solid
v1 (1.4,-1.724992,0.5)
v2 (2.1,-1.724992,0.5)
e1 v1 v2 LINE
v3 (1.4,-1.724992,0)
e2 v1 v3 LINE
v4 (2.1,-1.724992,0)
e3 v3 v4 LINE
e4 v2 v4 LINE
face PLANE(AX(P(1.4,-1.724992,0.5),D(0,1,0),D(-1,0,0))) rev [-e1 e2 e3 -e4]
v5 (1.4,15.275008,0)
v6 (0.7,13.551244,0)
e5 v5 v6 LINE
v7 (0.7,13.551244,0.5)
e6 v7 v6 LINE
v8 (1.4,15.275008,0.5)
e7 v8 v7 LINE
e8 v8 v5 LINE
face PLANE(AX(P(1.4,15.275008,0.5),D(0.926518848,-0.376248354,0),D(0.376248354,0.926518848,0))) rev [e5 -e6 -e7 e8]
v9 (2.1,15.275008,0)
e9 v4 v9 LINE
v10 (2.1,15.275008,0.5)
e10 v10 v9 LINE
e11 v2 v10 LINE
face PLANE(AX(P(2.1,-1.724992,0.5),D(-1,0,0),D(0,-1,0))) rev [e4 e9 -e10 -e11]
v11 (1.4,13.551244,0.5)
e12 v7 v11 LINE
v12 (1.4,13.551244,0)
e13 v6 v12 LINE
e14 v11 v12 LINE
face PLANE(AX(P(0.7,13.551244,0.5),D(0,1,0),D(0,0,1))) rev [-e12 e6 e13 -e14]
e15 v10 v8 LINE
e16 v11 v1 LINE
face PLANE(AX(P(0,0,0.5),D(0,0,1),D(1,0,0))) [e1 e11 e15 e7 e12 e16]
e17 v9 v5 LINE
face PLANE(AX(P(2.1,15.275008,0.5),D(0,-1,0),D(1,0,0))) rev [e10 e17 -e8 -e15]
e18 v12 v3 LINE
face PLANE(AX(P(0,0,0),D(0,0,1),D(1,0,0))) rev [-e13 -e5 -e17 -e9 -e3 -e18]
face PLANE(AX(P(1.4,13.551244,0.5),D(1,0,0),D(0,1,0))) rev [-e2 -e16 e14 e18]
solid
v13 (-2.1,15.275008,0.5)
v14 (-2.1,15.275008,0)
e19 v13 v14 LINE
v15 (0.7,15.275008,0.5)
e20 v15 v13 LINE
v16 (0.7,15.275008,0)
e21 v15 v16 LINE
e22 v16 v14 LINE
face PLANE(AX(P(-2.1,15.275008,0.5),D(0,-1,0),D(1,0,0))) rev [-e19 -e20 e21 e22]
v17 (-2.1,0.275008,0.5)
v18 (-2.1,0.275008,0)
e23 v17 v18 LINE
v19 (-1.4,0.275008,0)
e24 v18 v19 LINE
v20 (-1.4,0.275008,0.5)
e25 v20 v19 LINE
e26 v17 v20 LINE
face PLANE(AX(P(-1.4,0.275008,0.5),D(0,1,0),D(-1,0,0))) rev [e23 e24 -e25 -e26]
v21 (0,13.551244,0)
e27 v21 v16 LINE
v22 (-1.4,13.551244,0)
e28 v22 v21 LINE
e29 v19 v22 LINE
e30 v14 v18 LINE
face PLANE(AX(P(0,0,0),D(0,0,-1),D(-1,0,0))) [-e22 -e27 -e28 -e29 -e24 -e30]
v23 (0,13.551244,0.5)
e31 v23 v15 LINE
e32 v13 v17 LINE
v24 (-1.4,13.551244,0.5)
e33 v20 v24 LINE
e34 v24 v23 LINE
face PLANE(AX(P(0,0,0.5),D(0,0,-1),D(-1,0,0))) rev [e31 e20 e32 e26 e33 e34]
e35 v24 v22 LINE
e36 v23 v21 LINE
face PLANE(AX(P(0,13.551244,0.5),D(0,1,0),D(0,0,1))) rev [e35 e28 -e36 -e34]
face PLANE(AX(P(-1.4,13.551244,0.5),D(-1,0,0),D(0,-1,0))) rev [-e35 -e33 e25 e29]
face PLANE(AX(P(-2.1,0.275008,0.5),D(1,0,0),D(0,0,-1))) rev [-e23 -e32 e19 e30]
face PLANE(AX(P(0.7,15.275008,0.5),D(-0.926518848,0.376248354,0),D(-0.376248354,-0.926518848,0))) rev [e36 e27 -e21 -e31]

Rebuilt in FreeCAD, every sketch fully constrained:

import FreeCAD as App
import Part
import Sketcher
from FreeCAD import Vector


def add_polygon(sketch, points):
    """Adds a closed chain of lines whose ends are joined by coincident constraints."""
    first, n = sketch.GeometryCount, len(points)
    for a, b in zip(points, points[1:] + points[:1]):
        sketch.addGeometry(Part.LineSegment(App.Vector(*a, 0), App.Vector(*b, 0)), False)
    for i in range(n):
        sketch.addConstraint(Sketcher.Constraint("Coincident", first + i, 2, first + (i + 1) % n, 1))

doc = App.newDocument("Part")
body = doc.addObject("PartDesign::Body", "Body")

# Sketch on XY plane
sketch1 = body.newObject("Sketcher::SketchObject", "Sketch")
sketch1.AttachmentSupport = (doc.getObject("XY_Plane"), [""])
sketch1.MapMode = "FlatFace"
add_polygon(sketch1, [(2.1, -1.7), (2.1, 15.3), (1.4, 15.3), (0.7, 13.6), (1.4, 13.6), (1.4, -1.7)])  # lines 0-5
sketch1.addConstraint(Sketcher.Constraint("Vertical", 0))
sketch1.addConstraint(Sketcher.Constraint("Horizontal", 1))
sketch1.addConstraint(Sketcher.Constraint("Horizontal", 3))
sketch1.addConstraint(Sketcher.Constraint("Vertical", 4))
sketch1.addConstraint(Sketcher.Constraint("Horizontal", 5))
sketch1.addConstraint(Sketcher.Constraint("Vertical", 1, 2, 3, 2))
sketch1.addConstraint(Sketcher.Constraint("Equal", 1, 3))
sketch1.addConstraint(Sketcher.Constraint("DistanceY", 0, 1, 0, 2, 17.0))
sketch1.addConstraint(Sketcher.Constraint("DistanceX", 1, 2, 1, 1, 0.7))
sketch1.addConstraint(Sketcher.Constraint("DistanceX", -1, 1, 0, 2, 2.1))
sketch1.addConstraint(Sketcher.Constraint("DistanceY", 4, 2, 4, 1, 15.276236))
sketch1.addConstraint(Sketcher.Constraint("DistanceY", -1, 1, 0, 2, 15.275008))
pad1 = body.newObject("PartDesign::Pad", "Pad")
pad1.Profile = sketch1
pad1.Length = 0.5
body2 = doc.addObject("PartDesign::Body", "Body001")

# Sketch on XY plane
sketch2 = body2.newObject("Sketcher::SketchObject", "Sketch001")
sketch2.AttachmentSupport = (doc.getObject("XY_Plane001"), [""])
sketch2.MapMode = "FlatFace"
add_polygon(sketch2, [(0, 13.6), (0.7, 15.3), (-2.1, 15.3), (-2.1, 0.3), (-1.4, 0.3), (-1.4, 13.6)])  # lines 0-5
sketch2.addConstraint(Sketcher.Constraint("Horizontal", 1))
sketch2.addConstraint(Sketcher.Constraint("Vertical", 2))
sketch2.addConstraint(Sketcher.Constraint("Horizontal", 3))
sketch2.addConstraint(Sketcher.Constraint("Vertical", 4))
sketch2.addConstraint(Sketcher.Constraint("Horizontal", 5))
sketch2.addConstraint(Sketcher.Constraint("PointOnObject", 5, 2, -2))
sketch2.addConstraint(Sketcher.Constraint("DistanceY", 2, 2, 2, 1, 15.0))
sketch2.addConstraint(Sketcher.Constraint("DistanceX", 1, 2, 1, 1, 2.8))
sketch2.addConstraint(Sketcher.Constraint("DistanceX", 3, 1, 3, 2, 0.7))
sketch2.addConstraint(Sketcher.Constraint("DistanceX", 5, 1, 5, 2, 1.4))
sketch2.addConstraint(Sketcher.Constraint("DistanceY", 4, 1, 4, 2, 13.276236))
sketch2.addConstraint(Sketcher.Constraint("DistanceY", -1, 1, 0, 2, 15.275008))
pad2 = body2.newObject("PartDesign::Pad", "Pad001")
pad2.Profile = sketch2
pad2.Length = 0.5

doc.recompute()
